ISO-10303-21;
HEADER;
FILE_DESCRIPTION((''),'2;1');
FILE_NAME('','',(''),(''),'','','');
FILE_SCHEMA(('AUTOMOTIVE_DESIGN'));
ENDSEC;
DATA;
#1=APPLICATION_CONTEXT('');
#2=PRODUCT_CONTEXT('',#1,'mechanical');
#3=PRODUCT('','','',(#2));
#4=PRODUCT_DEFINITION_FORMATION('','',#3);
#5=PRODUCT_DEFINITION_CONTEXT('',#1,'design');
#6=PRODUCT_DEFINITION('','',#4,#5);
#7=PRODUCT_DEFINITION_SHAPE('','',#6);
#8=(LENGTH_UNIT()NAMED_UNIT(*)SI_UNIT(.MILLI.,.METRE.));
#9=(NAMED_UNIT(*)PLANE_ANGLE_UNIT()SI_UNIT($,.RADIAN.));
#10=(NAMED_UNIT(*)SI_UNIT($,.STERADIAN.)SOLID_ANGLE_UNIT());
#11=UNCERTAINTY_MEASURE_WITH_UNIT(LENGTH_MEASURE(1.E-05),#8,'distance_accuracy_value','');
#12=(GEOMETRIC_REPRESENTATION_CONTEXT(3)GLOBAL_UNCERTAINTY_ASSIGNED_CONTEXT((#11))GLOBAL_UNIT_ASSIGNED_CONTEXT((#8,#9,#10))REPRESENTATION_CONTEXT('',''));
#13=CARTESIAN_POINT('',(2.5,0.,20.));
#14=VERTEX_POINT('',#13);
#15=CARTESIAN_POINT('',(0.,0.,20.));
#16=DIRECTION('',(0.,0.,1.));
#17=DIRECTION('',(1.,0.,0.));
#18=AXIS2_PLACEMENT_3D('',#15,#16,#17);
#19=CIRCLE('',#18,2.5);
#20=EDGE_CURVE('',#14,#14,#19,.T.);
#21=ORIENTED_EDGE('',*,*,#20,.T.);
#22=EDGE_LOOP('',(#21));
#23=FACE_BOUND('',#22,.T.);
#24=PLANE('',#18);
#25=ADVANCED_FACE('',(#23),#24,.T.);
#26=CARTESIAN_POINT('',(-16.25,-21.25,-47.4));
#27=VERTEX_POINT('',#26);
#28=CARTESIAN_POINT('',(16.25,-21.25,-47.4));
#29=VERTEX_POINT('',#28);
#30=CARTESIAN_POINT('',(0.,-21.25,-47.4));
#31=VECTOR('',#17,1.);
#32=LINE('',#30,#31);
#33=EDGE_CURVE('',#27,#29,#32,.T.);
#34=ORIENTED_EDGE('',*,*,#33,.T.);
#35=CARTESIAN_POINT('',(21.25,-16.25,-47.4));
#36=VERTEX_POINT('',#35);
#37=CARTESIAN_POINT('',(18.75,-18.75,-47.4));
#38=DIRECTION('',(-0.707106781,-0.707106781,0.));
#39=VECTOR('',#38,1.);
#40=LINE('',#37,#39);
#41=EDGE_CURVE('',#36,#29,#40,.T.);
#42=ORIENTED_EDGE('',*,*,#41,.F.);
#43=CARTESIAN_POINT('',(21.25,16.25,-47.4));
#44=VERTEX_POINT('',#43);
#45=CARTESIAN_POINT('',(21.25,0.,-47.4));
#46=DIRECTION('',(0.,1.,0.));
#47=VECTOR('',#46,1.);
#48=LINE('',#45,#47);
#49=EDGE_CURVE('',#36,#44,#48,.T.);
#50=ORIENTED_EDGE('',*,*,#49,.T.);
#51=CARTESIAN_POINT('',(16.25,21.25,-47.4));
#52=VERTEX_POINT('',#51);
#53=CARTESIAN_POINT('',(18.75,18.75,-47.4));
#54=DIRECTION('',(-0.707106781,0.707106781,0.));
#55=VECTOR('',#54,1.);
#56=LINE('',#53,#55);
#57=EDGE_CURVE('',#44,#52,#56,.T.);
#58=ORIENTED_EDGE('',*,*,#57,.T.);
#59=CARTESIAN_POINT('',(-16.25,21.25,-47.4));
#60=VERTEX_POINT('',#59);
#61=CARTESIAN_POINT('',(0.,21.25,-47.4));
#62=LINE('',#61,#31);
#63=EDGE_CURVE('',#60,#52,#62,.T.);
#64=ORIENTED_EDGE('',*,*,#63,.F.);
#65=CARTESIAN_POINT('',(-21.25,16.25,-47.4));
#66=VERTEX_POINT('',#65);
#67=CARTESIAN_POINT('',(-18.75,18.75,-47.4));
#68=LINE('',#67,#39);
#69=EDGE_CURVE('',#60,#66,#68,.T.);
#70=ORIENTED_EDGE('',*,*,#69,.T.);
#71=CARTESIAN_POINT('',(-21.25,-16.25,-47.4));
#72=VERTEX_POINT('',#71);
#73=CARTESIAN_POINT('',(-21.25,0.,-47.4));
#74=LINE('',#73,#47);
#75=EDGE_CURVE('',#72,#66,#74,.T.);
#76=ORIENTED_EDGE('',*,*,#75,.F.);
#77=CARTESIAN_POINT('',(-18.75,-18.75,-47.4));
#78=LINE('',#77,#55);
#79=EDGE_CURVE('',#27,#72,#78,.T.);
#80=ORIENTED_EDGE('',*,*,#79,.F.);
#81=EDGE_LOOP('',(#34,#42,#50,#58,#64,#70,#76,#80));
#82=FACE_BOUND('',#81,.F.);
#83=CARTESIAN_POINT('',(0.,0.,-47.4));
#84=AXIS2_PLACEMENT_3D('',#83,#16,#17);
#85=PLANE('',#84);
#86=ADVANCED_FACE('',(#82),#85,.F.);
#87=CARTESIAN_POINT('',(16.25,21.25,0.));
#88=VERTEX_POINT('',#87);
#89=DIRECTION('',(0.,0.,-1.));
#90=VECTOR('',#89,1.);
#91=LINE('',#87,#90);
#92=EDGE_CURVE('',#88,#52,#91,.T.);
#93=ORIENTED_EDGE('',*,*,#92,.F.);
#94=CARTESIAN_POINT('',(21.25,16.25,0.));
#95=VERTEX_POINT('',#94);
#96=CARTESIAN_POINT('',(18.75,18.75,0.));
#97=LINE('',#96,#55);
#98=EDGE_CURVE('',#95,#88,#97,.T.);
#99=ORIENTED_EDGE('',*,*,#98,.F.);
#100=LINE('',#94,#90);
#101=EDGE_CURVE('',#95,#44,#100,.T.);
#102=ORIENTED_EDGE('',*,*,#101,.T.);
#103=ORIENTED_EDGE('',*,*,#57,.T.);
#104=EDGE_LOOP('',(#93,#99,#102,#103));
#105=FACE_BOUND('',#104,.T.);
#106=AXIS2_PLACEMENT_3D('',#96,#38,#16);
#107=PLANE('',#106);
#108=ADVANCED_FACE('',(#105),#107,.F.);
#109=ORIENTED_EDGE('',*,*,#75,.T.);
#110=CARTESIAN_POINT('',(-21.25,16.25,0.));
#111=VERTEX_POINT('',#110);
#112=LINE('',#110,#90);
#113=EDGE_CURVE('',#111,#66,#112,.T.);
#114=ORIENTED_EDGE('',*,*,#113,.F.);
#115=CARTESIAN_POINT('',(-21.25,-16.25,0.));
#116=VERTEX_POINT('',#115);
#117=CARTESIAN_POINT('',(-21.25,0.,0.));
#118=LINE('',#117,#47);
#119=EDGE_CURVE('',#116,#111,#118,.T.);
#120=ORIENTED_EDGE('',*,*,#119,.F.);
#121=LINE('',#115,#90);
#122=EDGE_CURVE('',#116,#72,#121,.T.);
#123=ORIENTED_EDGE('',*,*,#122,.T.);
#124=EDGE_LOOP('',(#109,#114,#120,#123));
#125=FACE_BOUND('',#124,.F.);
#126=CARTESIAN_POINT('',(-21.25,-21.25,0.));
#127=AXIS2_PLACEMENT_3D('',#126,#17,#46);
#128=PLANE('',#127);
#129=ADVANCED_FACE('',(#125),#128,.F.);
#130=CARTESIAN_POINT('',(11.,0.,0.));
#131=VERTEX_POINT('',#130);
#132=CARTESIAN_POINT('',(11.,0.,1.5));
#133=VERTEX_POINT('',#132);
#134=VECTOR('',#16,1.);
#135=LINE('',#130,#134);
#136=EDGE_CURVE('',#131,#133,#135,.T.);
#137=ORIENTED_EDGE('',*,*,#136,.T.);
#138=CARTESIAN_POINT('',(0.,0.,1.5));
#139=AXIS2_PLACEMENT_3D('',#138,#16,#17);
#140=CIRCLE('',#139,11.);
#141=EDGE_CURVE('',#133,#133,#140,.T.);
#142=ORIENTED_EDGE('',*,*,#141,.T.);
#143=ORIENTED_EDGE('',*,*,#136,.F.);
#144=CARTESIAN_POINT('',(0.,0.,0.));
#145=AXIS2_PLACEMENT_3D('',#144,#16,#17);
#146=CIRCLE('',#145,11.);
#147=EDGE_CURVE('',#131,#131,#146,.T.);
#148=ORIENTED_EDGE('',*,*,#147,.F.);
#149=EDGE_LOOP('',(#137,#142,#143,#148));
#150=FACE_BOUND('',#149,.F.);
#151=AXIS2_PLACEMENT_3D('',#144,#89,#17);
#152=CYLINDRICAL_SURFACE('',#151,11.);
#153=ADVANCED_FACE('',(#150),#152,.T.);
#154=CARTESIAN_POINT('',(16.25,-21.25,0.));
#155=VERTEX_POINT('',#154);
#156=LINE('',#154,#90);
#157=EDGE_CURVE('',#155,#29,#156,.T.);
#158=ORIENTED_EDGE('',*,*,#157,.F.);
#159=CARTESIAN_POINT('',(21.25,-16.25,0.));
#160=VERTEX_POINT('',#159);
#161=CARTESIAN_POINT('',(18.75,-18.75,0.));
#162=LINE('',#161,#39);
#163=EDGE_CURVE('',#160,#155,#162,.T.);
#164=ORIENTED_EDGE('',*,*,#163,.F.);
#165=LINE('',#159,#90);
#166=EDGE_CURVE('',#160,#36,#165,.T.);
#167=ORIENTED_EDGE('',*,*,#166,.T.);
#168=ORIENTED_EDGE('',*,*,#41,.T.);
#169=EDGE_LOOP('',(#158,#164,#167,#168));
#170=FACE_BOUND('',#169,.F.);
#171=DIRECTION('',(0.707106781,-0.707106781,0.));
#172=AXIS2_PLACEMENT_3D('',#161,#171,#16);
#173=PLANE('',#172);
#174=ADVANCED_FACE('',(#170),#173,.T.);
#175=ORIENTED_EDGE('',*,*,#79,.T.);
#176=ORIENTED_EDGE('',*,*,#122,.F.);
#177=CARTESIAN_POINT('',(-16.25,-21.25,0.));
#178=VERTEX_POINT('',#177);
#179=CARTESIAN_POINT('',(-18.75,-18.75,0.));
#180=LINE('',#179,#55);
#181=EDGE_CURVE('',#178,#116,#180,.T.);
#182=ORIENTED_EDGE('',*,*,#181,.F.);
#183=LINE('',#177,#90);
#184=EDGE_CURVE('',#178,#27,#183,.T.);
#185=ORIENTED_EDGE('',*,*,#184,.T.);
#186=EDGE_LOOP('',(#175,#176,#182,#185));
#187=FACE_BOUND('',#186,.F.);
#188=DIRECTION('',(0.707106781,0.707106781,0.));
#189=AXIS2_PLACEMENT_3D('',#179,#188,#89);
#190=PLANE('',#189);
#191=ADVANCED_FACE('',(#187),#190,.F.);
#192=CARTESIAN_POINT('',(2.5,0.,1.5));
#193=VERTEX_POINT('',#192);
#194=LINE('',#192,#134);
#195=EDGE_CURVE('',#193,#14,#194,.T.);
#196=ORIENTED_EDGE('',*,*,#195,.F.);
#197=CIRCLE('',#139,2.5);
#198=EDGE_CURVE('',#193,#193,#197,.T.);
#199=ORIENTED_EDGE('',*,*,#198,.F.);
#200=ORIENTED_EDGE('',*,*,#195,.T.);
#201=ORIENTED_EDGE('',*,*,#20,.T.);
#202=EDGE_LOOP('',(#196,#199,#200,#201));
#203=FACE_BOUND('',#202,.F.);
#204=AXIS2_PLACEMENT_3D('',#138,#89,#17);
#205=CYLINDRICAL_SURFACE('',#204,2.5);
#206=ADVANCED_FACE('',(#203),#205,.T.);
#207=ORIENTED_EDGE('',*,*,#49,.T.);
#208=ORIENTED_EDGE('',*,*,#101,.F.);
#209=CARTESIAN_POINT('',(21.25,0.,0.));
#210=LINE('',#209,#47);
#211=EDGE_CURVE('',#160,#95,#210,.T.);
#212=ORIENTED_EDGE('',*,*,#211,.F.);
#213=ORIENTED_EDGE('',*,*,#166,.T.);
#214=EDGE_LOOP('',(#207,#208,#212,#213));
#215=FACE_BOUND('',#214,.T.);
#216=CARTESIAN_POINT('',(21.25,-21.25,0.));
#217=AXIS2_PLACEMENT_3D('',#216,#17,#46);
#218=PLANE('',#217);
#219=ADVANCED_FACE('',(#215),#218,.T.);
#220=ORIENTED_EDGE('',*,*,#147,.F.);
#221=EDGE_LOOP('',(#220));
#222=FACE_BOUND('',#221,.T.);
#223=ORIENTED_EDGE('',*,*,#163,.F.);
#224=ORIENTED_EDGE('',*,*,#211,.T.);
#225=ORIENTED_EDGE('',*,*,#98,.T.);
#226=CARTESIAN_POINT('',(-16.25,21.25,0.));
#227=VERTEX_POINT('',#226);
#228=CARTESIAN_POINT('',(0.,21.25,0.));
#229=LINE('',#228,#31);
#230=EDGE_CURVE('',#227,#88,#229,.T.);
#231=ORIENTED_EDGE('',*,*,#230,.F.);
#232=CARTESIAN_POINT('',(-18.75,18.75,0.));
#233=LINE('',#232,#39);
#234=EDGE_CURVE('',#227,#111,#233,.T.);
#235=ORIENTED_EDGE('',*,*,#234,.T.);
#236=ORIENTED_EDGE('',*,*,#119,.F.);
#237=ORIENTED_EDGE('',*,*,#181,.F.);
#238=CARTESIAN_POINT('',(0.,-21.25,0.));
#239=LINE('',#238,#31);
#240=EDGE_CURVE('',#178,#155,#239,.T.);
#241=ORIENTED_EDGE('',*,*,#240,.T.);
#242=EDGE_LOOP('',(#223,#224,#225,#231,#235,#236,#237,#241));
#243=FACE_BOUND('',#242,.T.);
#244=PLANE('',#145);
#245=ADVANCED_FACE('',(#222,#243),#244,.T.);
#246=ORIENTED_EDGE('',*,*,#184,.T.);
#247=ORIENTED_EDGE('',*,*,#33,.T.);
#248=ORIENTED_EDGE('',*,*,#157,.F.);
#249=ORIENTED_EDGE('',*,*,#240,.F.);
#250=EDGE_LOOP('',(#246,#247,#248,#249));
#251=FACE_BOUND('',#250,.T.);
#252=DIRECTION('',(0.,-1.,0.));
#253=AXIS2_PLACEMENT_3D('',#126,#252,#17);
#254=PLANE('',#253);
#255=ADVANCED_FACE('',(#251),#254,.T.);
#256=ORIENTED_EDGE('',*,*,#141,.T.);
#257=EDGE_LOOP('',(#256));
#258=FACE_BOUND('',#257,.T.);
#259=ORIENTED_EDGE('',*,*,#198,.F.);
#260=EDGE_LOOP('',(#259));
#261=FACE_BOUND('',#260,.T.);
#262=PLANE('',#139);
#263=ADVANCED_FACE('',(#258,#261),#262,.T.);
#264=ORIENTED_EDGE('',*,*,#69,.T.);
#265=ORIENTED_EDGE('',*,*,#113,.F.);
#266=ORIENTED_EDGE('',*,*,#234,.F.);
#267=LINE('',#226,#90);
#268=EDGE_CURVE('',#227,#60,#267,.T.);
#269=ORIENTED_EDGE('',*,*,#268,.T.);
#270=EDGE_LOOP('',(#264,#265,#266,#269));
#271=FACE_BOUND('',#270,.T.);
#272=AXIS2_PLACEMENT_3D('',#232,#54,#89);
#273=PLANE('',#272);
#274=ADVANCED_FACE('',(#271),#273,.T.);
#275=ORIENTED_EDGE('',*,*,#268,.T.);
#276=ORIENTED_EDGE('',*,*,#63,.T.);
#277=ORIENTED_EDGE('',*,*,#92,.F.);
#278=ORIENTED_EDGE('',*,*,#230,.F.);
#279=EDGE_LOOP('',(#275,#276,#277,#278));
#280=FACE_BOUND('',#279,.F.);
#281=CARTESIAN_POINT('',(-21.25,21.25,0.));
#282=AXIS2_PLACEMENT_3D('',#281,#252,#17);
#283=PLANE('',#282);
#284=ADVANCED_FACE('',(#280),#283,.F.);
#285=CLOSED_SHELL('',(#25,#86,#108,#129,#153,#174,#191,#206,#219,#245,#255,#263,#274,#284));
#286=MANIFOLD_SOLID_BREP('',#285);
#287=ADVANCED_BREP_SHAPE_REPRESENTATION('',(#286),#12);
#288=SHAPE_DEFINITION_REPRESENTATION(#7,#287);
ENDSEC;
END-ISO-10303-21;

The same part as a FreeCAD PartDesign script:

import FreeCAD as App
import Part
import Sketcher
Q = App.Units.Quantity


def edges_at(feature, points):
    """Names of the edges that pass closest to the given points."""
    edges = feature.Shape.Edges
    near = lambda p: min(range(len(edges)), key=lambda i: edges[i].distToShape(Part.Vertex(*p))[0])
    return sorted({f"Edge{near(p) + 1}" for p in points})


def add_polygon(sketch, points):
    """Adds a closed chain of lines whose ends are joined by coincident constraints."""
    first, n = sketch.GeometryCount, len(points)
    for a, b in zip(points, points[1:] + points[:1]):
        sketch.addGeometry(Part.LineSegment(App.Vector(*a, 0), App.Vector(*b, 0)), False)
    for i in range(n):
        sketch.addConstraint(Sketcher.Constraint("Coincident", first + i, 2, first + (i + 1) % n, 1))

doc = App.newDocument("Part")
params = doc.addObject("Spreadsheet::Sheet", "Params")
for row, (alias, value) in enumerate([
    ("sketch1_width", "42.5 mm"),
    ("pad1_length", "47.4 mm"),
    ("chamfer_size", "5 mm"),
    ("chamfer2_size", "5 mm"),
    ("chamfer3_size", "5 mm"),
    ("chamfer4_size", "5 mm"),
    ("sketch2_diameter", "22 mm"),
    ("pad2_length", "1.5 mm"),
    ("sketch3_diameter", "5 mm"),
    ("pad3_length", "18.5 mm"),
], start=1):
    params.set(f"A{row}", alias)
    params.set(f"B{row}", "=" + value)
    params.setAlias(f"B{row}", alias)

body = doc.addObject("PartDesign::Body", "Body")

# Sketch on XZ plane
sketch1 = body.newObject("Sketcher::SketchObject", "Sketch")
sketch1.AttachmentSupport = (doc.getObject("XZ_Plane"), [""])
sketch1.MapMode = "FlatFace"
add_polygon(sketch1, [(-21.25, 21.25), (-21.25, -21.25), (21.25, -21.25), (21.25, 21.25)])  # lines 0-3
sketch1.addConstraint(Sketcher.Constraint("Vertical", 0))
sketch1.addConstraint(Sketcher.Constraint("Horizontal", 1))
sketch1.addConstraint(Sketcher.Constraint("Vertical", 2))
sketch1.addConstraint(Sketcher.Constraint("Horizontal", 3))
sketch1.addConstraint(Sketcher.Constraint("Symmetric", 0, 2, 2, 2, -1, 1))
sketch1.addConstraint(Sketcher.Constraint("Equal", 3, 0))
sketch1.addConstraint(Sketcher.Constraint("DistanceX", 1, 1, 1, 2, Q("42.5 mm")))
sketch1.setExpression("Constraints[10]", "Params.sketch1_width")
pad1 = body.newObject("PartDesign::Pad", "Pad")
pad1.Profile = sketch1
pad1.setExpression("Length", "Params.pad1_length")
pad1.Reversed = True
doc.recompute()

chamfer = body.newObject("PartDesign::Chamfer", "Chamfer")
chamfer.Base = (pad1, edges_at(pad1, [(21.25, 23.7, 21.25)]))
chamfer.setExpression("Size", "Params.chamfer_size")
doc.recompute()

chamfer2 = body.newObject("PartDesign::Chamfer", "Chamfer001")
chamfer2.Base = (chamfer, edges_at(chamfer, [(-21.25, 23.7, 21.25)]))
chamfer2.setExpression("Size", "Params.chamfer2_size")
doc.recompute()

chamfer3 = body.newObject("PartDesign::Chamfer", "Chamfer002")
chamfer3.Base = (chamfer2, edges_at(chamfer2, [(21.25, 23.7, -21.25)]))
chamfer3.setExpression("Size", "Params.chamfer3_size")
doc.recompute()

chamfer4 = body.newObject("PartDesign::Chamfer", "Chamfer003")
chamfer4.Base = (chamfer3, edges_at(chamfer3, [(-21.25, 23.7, -21.25)]))
chamfer4.setExpression("Size", "Params.chamfer4_size")

# Sketch on XZ plane
sketch2 = body.newObject("Sketcher::SketchObject", "Sketch001")
sketch2.AttachmentSupport = (doc.getObject("XZ_Plane"), [""])
sketch2.MapMode = "FlatFace"
sketch2.addGeometry(Part.Circle(App.Vector(0, 0, 0), App.Vector(0, 0, 1), 11), False)
sketch2.addConstraint(Sketcher.Constraint("Coincident", 0, 3, -1, 1))
sketch2.addConstraint(Sketcher.Constraint("Diameter", 0, Q("22 mm")))
sketch2.setExpression("Constraints[1]", "Params.sketch2_diameter")
pad2 = body.newObject("PartDesign::Pad", "Pad001")
pad2.Profile = sketch2
pad2.setExpression("Length", "Params.pad2_length")

# Sketch on XZ plane
sketch3 = body.newObject("Sketcher::SketchObject", "Sketch002")
sketch3.AttachmentSupport = (doc.getObject("XZ_Plane"), [""])
sketch3.MapMode = "FlatFace"
sketch3.AttachmentOffset = App.Placement(App.Vector(0, 0, 1.5), App.Rotation())
sketch3.addGeometry(Part.Circle(App.Vector(0, 0, 0), App.Vector(0, 0, 1), 2.5), False)
sketch3.addConstraint(Sketcher.Constraint("Coincident", 0, 3, -1, 1))
sketch3.addConstraint(Sketcher.Constraint("Diameter", 0, Q("5 mm")))
sketch3.setExpression("Constraints[1]", "Params.sketch3_diameter")
pad3 = body.newObject("PartDesign::Pad", "Pad002")
pad3.Profile = sketch3
pad3.setExpression("Length", "Params.pad3_length")
body2 = doc.addObject("PartDesign::Body", "Body001")
doc.recompute()

body.Placement = App.Placement(App.Vector(0, 0, 0), App.Rotation(App.Vector(1, 0, 0), 270))
boolean = body2.newObject("PartDesign::Boolean", "Boolean")
boolean.Type = "Fuse"
boolean.addObjects([body])

doc.recompute()
